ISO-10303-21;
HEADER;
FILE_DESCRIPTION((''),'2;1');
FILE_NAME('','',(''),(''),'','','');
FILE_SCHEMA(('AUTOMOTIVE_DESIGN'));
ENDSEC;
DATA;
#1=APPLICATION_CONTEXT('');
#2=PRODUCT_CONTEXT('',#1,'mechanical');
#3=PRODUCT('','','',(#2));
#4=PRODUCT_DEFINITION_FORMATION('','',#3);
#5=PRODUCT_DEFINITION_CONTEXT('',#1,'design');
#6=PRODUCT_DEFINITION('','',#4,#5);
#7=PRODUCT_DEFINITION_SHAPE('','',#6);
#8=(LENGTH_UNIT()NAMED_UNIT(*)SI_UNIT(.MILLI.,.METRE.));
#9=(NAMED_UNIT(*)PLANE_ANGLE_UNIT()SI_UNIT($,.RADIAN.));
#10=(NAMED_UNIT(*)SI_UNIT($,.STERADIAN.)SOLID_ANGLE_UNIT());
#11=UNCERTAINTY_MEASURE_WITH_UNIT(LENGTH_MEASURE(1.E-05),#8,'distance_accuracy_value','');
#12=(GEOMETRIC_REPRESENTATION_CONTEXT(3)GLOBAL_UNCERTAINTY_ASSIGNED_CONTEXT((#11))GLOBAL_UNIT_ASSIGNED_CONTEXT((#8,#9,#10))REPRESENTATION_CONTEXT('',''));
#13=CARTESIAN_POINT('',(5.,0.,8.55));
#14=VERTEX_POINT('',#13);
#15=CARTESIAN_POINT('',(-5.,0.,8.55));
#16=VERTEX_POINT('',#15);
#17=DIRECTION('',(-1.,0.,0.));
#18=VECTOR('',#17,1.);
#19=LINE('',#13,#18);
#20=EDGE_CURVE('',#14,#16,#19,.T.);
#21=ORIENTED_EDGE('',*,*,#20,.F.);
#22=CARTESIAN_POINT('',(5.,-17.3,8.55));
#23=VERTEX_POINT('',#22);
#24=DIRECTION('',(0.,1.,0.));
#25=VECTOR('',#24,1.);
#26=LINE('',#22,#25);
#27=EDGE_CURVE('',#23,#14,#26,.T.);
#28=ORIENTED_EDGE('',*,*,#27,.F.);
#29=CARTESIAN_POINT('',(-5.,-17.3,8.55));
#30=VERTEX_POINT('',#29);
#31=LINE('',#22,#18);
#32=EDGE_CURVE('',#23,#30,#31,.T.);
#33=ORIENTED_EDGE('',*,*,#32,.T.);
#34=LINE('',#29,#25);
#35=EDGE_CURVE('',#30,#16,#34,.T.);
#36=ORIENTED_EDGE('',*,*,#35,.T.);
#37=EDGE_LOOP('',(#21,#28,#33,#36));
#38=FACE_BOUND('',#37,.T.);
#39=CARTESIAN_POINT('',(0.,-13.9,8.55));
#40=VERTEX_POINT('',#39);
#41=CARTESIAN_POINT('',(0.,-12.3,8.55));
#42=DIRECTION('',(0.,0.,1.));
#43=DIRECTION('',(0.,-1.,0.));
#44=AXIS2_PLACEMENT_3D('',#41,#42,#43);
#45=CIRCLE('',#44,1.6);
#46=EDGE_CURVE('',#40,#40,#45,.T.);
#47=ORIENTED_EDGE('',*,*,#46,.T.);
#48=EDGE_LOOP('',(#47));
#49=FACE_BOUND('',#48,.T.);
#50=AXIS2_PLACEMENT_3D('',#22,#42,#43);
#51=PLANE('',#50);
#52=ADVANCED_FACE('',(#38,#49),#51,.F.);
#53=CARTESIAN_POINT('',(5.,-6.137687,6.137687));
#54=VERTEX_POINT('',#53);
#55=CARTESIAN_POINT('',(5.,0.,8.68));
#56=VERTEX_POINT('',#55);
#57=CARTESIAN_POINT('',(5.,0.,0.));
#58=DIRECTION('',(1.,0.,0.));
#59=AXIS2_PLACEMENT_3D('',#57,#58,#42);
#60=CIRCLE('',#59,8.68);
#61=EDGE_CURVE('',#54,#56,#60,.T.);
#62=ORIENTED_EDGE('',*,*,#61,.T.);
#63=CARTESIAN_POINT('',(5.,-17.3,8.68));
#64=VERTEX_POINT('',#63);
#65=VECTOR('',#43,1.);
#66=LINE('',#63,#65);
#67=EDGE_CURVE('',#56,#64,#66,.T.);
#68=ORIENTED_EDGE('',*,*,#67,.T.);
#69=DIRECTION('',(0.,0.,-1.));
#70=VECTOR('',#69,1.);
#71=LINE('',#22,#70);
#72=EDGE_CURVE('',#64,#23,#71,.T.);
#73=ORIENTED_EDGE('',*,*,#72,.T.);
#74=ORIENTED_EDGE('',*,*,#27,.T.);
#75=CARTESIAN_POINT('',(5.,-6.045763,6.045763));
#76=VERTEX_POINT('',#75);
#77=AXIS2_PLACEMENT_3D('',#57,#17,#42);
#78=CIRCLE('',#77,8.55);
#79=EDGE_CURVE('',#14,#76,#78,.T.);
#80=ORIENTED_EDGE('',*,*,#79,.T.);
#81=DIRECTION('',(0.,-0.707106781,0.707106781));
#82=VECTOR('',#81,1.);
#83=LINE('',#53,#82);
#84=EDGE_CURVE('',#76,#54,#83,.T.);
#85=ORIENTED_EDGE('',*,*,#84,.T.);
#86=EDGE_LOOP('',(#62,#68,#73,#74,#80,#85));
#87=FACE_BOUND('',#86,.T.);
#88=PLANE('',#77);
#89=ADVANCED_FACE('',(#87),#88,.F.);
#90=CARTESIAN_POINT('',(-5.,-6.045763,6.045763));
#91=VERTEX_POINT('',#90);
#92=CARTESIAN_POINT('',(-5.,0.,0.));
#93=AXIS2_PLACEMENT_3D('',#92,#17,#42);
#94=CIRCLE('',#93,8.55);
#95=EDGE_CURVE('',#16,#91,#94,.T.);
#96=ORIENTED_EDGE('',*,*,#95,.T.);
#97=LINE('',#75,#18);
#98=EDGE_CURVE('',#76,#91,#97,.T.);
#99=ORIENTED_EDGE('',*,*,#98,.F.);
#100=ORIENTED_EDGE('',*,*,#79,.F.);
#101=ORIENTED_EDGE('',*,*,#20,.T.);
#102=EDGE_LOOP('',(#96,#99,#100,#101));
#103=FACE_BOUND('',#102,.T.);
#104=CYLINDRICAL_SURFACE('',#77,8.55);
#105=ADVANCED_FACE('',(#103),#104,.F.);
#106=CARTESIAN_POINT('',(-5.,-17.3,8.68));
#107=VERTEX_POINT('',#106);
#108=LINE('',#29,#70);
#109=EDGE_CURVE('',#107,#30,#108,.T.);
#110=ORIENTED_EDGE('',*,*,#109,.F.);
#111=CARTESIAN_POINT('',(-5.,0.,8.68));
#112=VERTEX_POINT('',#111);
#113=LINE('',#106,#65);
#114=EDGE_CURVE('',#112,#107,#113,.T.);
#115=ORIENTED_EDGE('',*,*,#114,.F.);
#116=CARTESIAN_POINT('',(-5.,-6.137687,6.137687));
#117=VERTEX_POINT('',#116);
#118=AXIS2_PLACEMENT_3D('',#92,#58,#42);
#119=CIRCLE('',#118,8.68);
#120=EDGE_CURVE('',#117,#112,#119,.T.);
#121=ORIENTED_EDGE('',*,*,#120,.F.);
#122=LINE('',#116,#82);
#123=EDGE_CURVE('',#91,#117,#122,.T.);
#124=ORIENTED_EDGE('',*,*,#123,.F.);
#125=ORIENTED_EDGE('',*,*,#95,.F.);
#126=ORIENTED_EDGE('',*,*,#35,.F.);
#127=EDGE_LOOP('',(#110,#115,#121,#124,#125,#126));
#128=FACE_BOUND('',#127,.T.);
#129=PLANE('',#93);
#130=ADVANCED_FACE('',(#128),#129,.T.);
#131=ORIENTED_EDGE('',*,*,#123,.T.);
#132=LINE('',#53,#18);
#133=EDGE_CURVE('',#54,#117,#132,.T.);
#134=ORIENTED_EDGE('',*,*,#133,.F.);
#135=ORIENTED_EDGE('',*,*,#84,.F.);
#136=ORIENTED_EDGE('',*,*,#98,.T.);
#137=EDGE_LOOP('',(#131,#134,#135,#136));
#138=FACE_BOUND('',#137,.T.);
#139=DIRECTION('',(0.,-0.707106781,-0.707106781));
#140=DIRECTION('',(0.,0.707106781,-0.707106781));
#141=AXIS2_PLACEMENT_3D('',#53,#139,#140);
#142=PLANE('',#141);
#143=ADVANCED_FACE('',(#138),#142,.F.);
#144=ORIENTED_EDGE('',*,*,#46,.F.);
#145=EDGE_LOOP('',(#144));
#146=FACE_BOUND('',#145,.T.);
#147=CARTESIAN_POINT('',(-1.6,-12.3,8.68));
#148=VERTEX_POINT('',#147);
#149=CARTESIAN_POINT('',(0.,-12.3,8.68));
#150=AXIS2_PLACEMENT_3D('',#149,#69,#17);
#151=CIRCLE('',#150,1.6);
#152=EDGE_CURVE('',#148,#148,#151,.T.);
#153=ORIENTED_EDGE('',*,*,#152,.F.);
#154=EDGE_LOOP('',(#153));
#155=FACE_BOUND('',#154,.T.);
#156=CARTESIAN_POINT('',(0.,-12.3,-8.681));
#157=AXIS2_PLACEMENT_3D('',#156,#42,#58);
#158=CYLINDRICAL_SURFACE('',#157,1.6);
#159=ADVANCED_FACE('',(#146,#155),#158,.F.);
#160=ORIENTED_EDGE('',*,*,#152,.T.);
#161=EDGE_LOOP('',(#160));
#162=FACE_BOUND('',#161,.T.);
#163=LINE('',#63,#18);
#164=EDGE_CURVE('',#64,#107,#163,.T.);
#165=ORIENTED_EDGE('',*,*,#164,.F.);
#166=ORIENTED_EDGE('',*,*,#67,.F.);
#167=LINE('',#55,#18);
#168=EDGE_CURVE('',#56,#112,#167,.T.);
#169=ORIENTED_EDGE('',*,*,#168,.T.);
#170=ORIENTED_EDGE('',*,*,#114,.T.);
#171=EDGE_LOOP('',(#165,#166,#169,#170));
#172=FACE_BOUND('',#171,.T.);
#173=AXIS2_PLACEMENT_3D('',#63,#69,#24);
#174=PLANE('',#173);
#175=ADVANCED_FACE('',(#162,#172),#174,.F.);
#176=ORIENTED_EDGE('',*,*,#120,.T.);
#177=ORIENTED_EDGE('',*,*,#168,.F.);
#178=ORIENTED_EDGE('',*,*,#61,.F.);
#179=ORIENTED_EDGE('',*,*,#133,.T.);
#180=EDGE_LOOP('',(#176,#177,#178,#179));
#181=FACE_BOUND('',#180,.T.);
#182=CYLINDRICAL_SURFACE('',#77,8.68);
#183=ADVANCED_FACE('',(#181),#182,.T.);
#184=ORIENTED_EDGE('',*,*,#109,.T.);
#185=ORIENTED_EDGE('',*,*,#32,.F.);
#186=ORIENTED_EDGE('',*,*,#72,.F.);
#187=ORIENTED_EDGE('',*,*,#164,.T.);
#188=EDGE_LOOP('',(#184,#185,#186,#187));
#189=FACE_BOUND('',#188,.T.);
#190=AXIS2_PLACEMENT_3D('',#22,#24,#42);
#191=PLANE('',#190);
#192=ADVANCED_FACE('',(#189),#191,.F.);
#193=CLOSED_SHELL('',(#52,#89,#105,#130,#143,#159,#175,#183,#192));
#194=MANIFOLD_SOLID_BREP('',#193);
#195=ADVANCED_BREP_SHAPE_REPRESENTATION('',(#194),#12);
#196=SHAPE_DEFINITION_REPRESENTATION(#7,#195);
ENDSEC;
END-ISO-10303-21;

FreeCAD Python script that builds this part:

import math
import FreeCAD as App
import Part
import Sketcher
Q = App.Units.Quantity

doc = App.newDocument("Part")
params = doc.addObject("Spreadsheet::Sheet", "Params")
for row, (alias, value) in enumerate([
    ("sketch1_radius", "8.68 mm"),
    ("sketch1_radius2", "8.55 mm"),
    ("sketch1_width", "17.3 mm"),
    ("pad1_length", "10 mm"),
    ("sketch2_diameter", "3.2 mm"),
], start=1):
    params.set(f"A{row}", alias)
    params.set(f"B{row}", "=" + value)
    params.setAlias(f"B{row}", alias)

body = doc.addObject("PartDesign::Body", "Body")

sketch1 = body.newObject("Sketcher::SketchObject", "Sketch")
sketch1.AttachmentSupport = (doc.getObject("YZ_Plane"), [""])
sketch1.MapMode = "FlatFace"
sketch1.addGeometry([
    Part.LineSegment(App.Vector(-6.045763, 6.045763, 0), App.Vector(-6.137687, 6.137687, 0)),
    Part.ArcOfCircle(Part.Circle(App.Vector(0, 0, 0), App.Vector(0, 0, 1), 8.68), math.radians(135), math.radians(450)),
    Part.LineSegment(App.Vector(0, 8.68, 0), App.Vector(-17.3, 8.68, 0)),
    Part.LineSegment(App.Vector(-17.3, 8.68, 0), App.Vector(-17.3, 8.55, 0)),
    Part.LineSegment(App.Vector(-17.3, 8.55, 0), App.Vector(0, 8.55, 0)),
    Part.ArcOfCircle(Part.Circle(App.Vector(0, 0, 0), App.Vector(0, 0, 1), 8.55), math.radians(135), math.radians(450)),
], False)
sketch1.addConstraint([
    Sketcher.Constraint("Coincident", 0, 2, 1, 1),
    Sketcher.Constraint("Tangent", 1, 2, 2, 1),
    Sketcher.Constraint("Coincident", 2, 2, 3, 1),
    Sketcher.Constraint("Coincident", 3, 2, 4, 1),
    Sketcher.Constraint("Tangent", 4, 2, 5, 2),
    Sketcher.Constraint("Coincident", 5, 1, 0, 1),
    Sketcher.Constraint("Horizontal", 2),
    Sketcher.Constraint("Vertical", 3),
    Sketcher.Constraint("Horizontal", 4),
    Sketcher.Constraint("Coincident", 1, 3, -1, 1),
    Sketcher.Constraint("Coincident", 5, 3, -1, 1),
    Sketcher.Constraint("Angle", 0, Q("135 deg")),
    Sketcher.Constraint("Radius", 1, 8.68),
    Sketcher.Constraint("Radius", 5, 8.55),
    Sketcher.Constraint("DistanceX", 2, 2, 2, 1, 17.3),
    Sketcher.Constraint("DistanceX", 0, 2, -1, 1, 6.137687),
])
sketch1.setExpression("Constraints[12]", "Params.sketch1_radius")
sketch1.setExpression("Constraints[13]", "Params.sketch1_radius2")
sketch1.setExpression("Constraints[14]", "Params.sketch1_width")
pad1 = body.newObject("PartDesign::Pad", "Pad")
pad1.Profile = sketch1
pad1.setExpression("Length", "Params.pad1_length")
pad1.Midplane = True

sketch2 = body.newObject("Sketcher::SketchObject", "Sketch001")
sketch2.AttachmentSupport = (doc.getObject("XY_Plane"), [""])
sketch2.MapMode = "FlatFace"
sketch2.AttachmentOffset = App.Placement(App.Vector(0, 0, 8.68), App.Rotation())
sketch2.addGeometry(Part.Circle(App.Vector(0, -12.3, 0), App.Vector(0, 0, 1), 1.6), False)
sketch2.addConstraint([
    Sketcher.Constraint("PointOnObject", 0, 3, -2),
    Sketcher.Constraint("Diameter", 0, 3.2),
    Sketcher.Constraint("DistanceY", 0, 3, -1, 1, 12.3),
])
sketch2.setExpression("Constraints[1]", "Params.sketch2_diameter")
pocket1 = body.newObject("PartDesign::Pocket", "Pocket")
pocket1.Profile = sketch2
pocket1.Type = "UpToFirst"

doc.recompute()
